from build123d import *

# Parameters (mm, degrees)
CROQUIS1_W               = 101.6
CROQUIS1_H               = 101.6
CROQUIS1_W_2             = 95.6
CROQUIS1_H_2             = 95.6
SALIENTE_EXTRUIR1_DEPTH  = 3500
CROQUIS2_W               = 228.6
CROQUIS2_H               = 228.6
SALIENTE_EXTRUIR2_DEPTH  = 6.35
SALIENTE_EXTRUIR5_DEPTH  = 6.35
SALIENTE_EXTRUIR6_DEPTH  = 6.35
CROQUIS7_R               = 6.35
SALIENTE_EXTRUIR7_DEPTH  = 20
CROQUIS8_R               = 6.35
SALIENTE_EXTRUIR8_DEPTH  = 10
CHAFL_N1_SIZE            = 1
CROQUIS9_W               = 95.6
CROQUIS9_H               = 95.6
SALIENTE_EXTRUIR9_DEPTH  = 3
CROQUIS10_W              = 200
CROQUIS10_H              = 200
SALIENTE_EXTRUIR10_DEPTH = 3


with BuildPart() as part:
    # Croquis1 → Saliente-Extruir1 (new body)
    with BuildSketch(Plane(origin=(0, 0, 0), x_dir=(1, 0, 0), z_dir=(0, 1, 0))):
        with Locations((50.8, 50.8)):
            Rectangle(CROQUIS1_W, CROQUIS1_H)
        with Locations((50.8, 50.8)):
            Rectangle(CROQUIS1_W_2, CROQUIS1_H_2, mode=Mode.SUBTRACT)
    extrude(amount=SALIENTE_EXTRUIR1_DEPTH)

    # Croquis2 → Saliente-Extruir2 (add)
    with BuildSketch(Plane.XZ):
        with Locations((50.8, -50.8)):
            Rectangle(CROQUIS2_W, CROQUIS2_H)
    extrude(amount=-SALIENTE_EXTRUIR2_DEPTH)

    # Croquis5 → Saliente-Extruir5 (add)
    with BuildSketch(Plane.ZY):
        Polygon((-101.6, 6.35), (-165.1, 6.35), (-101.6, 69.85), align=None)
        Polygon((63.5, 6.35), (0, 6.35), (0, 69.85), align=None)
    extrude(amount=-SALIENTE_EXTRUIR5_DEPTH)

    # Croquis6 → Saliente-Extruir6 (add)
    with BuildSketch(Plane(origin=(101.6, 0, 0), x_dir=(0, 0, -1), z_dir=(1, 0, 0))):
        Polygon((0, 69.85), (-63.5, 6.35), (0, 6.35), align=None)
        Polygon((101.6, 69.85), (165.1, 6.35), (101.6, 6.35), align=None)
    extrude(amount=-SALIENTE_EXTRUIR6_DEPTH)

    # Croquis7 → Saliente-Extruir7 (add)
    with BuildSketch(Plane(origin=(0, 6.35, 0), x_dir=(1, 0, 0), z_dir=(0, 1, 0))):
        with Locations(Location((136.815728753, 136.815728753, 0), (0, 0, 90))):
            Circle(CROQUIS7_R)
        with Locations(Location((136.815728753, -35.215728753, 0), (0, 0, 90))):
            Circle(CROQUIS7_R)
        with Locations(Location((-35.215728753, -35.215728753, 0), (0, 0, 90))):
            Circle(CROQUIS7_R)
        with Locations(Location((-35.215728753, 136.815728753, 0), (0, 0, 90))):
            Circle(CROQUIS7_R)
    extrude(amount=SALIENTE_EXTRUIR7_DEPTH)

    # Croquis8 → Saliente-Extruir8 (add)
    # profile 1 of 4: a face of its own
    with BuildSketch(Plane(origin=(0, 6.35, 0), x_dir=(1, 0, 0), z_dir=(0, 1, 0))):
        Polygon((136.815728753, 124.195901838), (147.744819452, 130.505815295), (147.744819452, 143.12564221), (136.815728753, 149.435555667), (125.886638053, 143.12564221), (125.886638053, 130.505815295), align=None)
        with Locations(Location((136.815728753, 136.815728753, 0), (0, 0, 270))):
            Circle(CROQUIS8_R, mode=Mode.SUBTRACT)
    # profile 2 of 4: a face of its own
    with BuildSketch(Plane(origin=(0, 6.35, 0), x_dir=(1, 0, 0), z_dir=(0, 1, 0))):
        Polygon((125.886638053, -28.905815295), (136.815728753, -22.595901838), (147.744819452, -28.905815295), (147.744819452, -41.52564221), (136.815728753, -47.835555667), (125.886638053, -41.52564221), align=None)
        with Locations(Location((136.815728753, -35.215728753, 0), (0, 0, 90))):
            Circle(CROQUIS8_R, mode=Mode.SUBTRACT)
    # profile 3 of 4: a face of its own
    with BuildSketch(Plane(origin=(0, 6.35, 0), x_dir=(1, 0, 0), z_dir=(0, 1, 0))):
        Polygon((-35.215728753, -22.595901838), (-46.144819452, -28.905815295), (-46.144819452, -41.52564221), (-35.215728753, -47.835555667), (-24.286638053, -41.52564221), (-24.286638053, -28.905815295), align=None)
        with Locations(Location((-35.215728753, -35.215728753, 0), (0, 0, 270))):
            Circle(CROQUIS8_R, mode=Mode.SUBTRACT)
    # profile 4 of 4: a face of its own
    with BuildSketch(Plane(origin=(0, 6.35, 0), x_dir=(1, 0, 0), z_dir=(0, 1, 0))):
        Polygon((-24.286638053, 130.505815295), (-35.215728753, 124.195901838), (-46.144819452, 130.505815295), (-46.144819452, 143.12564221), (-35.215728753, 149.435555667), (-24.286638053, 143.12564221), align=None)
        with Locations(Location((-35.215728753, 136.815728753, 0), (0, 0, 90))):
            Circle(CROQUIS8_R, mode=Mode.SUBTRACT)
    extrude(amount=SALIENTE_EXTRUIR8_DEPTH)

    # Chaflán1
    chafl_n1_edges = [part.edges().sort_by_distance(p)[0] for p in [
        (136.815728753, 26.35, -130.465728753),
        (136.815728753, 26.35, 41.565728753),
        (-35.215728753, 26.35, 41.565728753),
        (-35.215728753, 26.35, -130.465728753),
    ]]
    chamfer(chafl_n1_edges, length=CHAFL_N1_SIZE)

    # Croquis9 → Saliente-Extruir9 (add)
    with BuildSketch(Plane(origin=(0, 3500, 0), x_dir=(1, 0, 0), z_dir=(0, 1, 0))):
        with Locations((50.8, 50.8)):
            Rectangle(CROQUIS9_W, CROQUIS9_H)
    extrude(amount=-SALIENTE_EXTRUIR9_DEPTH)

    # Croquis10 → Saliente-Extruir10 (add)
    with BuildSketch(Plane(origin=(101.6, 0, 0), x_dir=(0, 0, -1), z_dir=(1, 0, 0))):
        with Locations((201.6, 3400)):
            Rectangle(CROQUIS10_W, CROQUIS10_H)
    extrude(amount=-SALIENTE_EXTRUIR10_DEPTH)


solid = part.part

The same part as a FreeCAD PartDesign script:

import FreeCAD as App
import Part
import Sketcher
from FreeCAD import Vector
Q = App.Units.Quantity


def edges_at(feature, points):
    """Names of the edges that pass closest to the given points."""
    edges = feature.Shape.Edges
    near = lambda p: min(range(len(edges)), key=lambda i: edges[i].distToShape(Part.Vertex(*p))[0])
    return sorted({f"Edge{near(p) + 1}" for p in points})


def add_polygon(sketch, points):
    """Adds a closed chain of lines whose ends are joined by coincident constraints."""
    first, n = sketch.GeometryCount, len(points)
    for a, b in zip(points, points[1:] + points[:1]):
        sketch.addGeometry(Part.LineSegment(App.Vector(*a, 0), App.Vector(*b, 0)), False)
    for i in range(n):
        sketch.addConstraint(Sketcher.Constraint("Coincident", first + i, 2, first + (i + 1) % n, 1))

doc = App.newDocument("Part")
body = doc.addObject("PartDesign::Body", "Body")

# Sketch on XZ plane
sketch1 = body.newObject("Sketcher::SketchObject", "Sketch")
sketch1.AttachmentSupport = (doc.getObject("XZ_Plane"), [""])
sketch1.MapMode = "FlatFace"
add_polygon(sketch1, [(0, -102), (0, 0), (102, 0), (102, -102)])  # lines 0-3
add_polygon(sketch1, [(99, -3), (3, -3), (3, -99), (99, -99)])  # lines 4-7
sketch1.addConstraint([
    Sketcher.Constraint("Vertical", 0),
    Sketcher.Constraint("Horizontal", 1),
    Sketcher.Constraint("Vertical", 2),
    Sketcher.Constraint("Horizontal", 3),
    Sketcher.Constraint("Horizontal", 4),
    Sketcher.Constraint("Vertical", 5),
    Sketcher.Constraint("Horizontal", 6),
    Sketcher.Constraint("Vertical", 7),
    Sketcher.Constraint("Coincident", 0, 2, -1, 1),
    Sketcher.Constraint("Equal", 3, 0),
    Sketcher.Constraint("Equal", 6, 5),
    Sketcher.Constraint("DistanceX", 1, 1, 1, 2, Q("101.6 mm")),
    Sketcher.Constraint("DistanceX", 4, 2, 4, 1, Q("95.6 mm")),
    Sketcher.Constraint("DistanceX", -1, 1, 4, 2, Q("3 mm")),
    Sketcher.Constraint("DistanceY", 4, 2, -1, 1, Q("3 mm")),
])
pad1 = body.newObject("PartDesign::Pad", "Pad")
pad1.Profile = sketch1
pad1.Length = 3500
pad1.Reversed = True

# Sketch on XZ plane
sketch2 = body.newObject("Sketcher::SketchObject", "Sketch001")
sketch2.AttachmentSupport = (doc.getObject("XZ_Plane"), [""])
sketch2.MapMode = "FlatFace"
add_polygon(sketch2, [(-64, 64), (-64, -165), (165, -165), (165, 64)])  # lines 0-3
sketch2.addConstraint([
    Sketcher.Constraint("Vertical", 0),
    Sketcher.Constraint("Horizontal", 1),
    Sketcher.Constraint("Vertical", 2),
    Sketcher.Constraint("Horizontal", 3),
    Sketcher.Constraint("Equal", 3, 0),
    Sketcher.Constraint("DistanceX", 1, 1, 1, 2, Q("228.6 mm")),
    Sketcher.Constraint("DistanceX", 0, 2, -1, 1, Q("63.5 mm")),
    Sketcher.Constraint("DistanceY", 0, 2, -1, 1, Q("165.1 mm")),
])
pad2 = body.newObject("PartDesign::Pad", "Pad001")
pad2.Profile = sketch2
pad2.Length = 6.35
pad2.Reversed = True

# Sketch on YZ plane
sketch3 = body.newObject("Sketcher::SketchObject", "Sketch002")
sketch3.AttachmentSupport = (doc.getObject("YZ_Plane"), [""])
sketch3.MapMode = "FlatFace"
add_polygon(sketch3, [(6, -165), (6, -102), (70, -102)])  # lines 0-2
add_polygon(sketch3, [(6, 0), (6, 64), (70, 0)])  # lines 3-5
sketch3.addConstraint([
    Sketcher.Constraint("Vertical", 0),
    Sketcher.Constraint("Horizontal", 1),
    Sketcher.Constraint("Vertical", 3),
    Sketcher.Constraint("Horizontal", 5),
    Sketcher.Constraint("PointOnObject", 4, 2, -1),
    Sketcher.Constraint("Perpendicular", 2, 4),
    Sketcher.Constraint("Vertical", 2, 2, 3, 2),
    Sketcher.Constraint("Vertical", 1, 2, 4, 2),
    Sketcher.Constraint("Equal", 5, 0),
    Sketcher.Constraint("DistanceX", 1, 1, 1, 2, Q("63.5 mm")),
    Sketcher.Constraint("DistanceY", 0, 2, -1, 1, Q("101.6 mm")),
    Sketcher.Constraint("DistanceX", -1, 1, 0, 2, Q("6.35 mm")),
])
pad3 = body.newObject("PartDesign::Pad", "Pad002")
pad3.Profile = sketch3
pad3.Length = 6.35

# Sketch on YZ plane
sketch4 = body.newObject("Sketcher::SketchObject", "Sketch003")
sketch4.AttachmentSupport = (doc.getObject("YZ_Plane"), [""])
sketch4.MapMode = "FlatFace"
sketch4.AttachmentOffset = App.Placement(Vector(0, 0, 101.6), App.Rotation())
add_polygon(sketch4, [(70, 0), (6, 64), (6, 0)])  # lines 0-2
add_polygon(sketch4, [(6, -165), (70, -102), (6, -102)])  # lines 3-5
sketch4.addConstraint([
    Sketcher.Constraint("Vertical", 1),
    Sketcher.Constraint("Horizontal", 2),
    Sketcher.Constraint("Horizontal", 4),
    Sketcher.Constraint("Vertical", 5),
    Sketcher.Constraint("PointOnObject", 1, 2, -1),
    Sketcher.Constraint("Perpendicular", 0, 3),
    Sketcher.Constraint("Vertical", 2, 2, 3, 2),
    Sketcher.Constraint("Vertical", 1, 2, 4, 2),
    Sketcher.Constraint("Equal", 4, 1),
    Sketcher.Constraint("DistanceX", 2, 1, 2, 2, Q("63.5 mm")),
    Sketcher.Constraint("DistanceY", 3, 2, -1, 1, Q("101.6 mm")),
    Sketcher.Constraint("DistanceX", -1, 1, 0, 2, Q("6.35 mm")),
])
pad4 = body.newObject("PartDesign::Pad", "Pad003")
pad4.Profile = sketch4
pad4.Length = 6.35
pad4.Reversed = True

# Sketch on XZ plane
sketch5 = body.newObject("Sketcher::SketchObject", "Sketch004")
sketch5.AttachmentSupport = (doc.getObject("XZ_Plane"), [""])
sketch5.MapMode = "FlatFace"
sketch5.AttachmentOffset = App.Placement(Vector(0, 0, -6.35), App.Rotation())
sketch5.addGeometry([
    Part.Circle(Vector(137, -137, 0), Vector(0, 0, 1), 6),
    Part.Circle(Vector(137, 35, 0), Vector(0, 0, 1), 6),
    Part.Circle(Vector(-35, 35, 0), Vector(0, 0, 1), 6),
    Part.Circle(Vector(-35, -137, 0), Vector(0, 0, 1), 6),
], False)
sketch5.addConstraint([
    Sketcher.Constraint("Equal", 0, 1),
    Sketcher.Constraint("Equal", 1, 2),
    Sketcher.Constraint("Equal", 2, 3),
    Sketcher.Constraint("Horizontal", 1, 3, 2, 3),
    Sketcher.Constraint("Horizontal", 0, 3, 3, 3),
    Sketcher.Constraint("Vertical", 0, 3, 1, 3),
    Sketcher.Constraint("Vertical", 2, 3, 3, 3),
    Sketcher.Constraint("Diameter", 0, Q("12.7 mm")),
    Sketcher.Constraint("DistanceX", -1, 1, 0, 3, Q("136.815729 mm")),
    Sketcher.Constraint("DistanceY", 0, 3, -1, 1, Q("136.815729 mm")),
    Sketcher.Constraint("DistanceY", -1, 1, 1, 3, Q("35.215729 mm")),
    Sketcher.Constraint("DistanceX", 2, 3, -1, 1, Q("35.215729 mm")),
])
pad5 = body.newObject("PartDesign::Pad", "Pad004")
pad5.Profile = sketch5
pad5.Length = 20
pad5.Reversed = True

# Sketch on XZ plane
sketch6 = body.newObject("Sketcher::SketchObject", "Sketch005")
sketch6.AttachmentSupport = (doc.getObject("XZ_Plane"), [""])
sketch6.MapMode = "FlatFace"
sketch6.AttachmentOffset = App.Placement(Vector(0, 0, -6.35), App.Rotation())
add_polygon(sketch6, [(137, -124), (148, -131), (148, -143), (137, -149), (126, -143), (126, -131)])  # lines 0-5
sketch6.addGeometry(Part.Circle(Vector(137, -137, 0), Vector(0, 0, 1), 6), False)  # 6
add_polygon(sketch6, [(137, 23), (126, 29), (126, 42), (137, 48), (148, 42), (148, 29)])  # lines 7-12
sketch6.addGeometry(Part.Circle(Vector(137, 35, 0), Vector(0, 0, 1), 6), False)  # 13
add_polygon(sketch6, [(-35, 23), (-46, 29), (-46, 42), (-35, 48), (-24, 42), (-24, 29)])  # lines 14-19
sketch6.addGeometry(Part.Circle(Vector(-35, 35, 0), Vector(0, 0, 1), 6), False)  # 20
add_polygon(sketch6, [(-35, -124), (-24, -131), (-24, -143), (-35, -149), (-46, -143), (-46, -131)])  # lines 21-26
sketch6.addGeometry(Part.Circle(Vector(-35, -137, 0), Vector(0, 0, 1), 6), False)  # 27
sketch6.addConstraint([
    Sketcher.Constraint("Vertical", 1),
    Sketcher.Constraint("Vertical", 4),
    Sketcher.Constraint("Vertical", 8),
    Sketcher.Constraint("Vertical", 11),
    Sketcher.Constraint("Vertical", 15),
    Sketcher.Constraint("Vertical", 18),
    Sketcher.Constraint("Vertical", 22),
    Sketcher.Constraint("Vertical", 25),
    Sketcher.Constraint("Equal", 6, 13),
    Sketcher.Constraint("Equal", 13, 20),
    Sketcher.Constraint("Equal", 20, 27),
    Sketcher.Constraint("Parallel", 0, 3),
    Sketcher.Constraint("Parallel", 2, 5),
    Sketcher.Constraint("Parallel", 3, 7),
    Sketcher.Constraint("Parallel", 5, 9),
    Sketcher.Constraint("Parallel", 7, 10),
    Sketcher.Constraint("Parallel", 9, 12),
    Sketcher.Constraint("Parallel", 10, 14),
    Sketcher.Constraint("Parallel", 12, 16),
    Sketcher.Constraint("Parallel", 14, 17),
    Sketcher.Constraint("Parallel", 16, 19),
    Sketcher.Constraint("Parallel", 17, 21),
    Sketcher.Constraint("Parallel", 19, 23),
    Sketcher.Constraint("Parallel", 21, 24),
    Sketcher.Constraint("Parallel", 23, 26),
    Sketcher.Constraint("Horizontal", 13, 3, 20, 3),
    Sketcher.Constraint("Horizontal", 6, 3, 27, 3),
    Sketcher.Constraint("Horizontal", 1, 2, 3, 2),
    Sketcher.Constraint("Horizontal", 0, 2, 4, 2),
    Sketcher.Constraint("Horizontal", 8, 2, 10, 2),
    Sketcher.Constraint("Horizontal", 7, 2, 11, 2),
    Sketcher.Constraint("Horizontal", 11, 2, 14, 2),
    Sketcher.Constraint("Horizontal", 10, 2, 15, 2),
    Sketcher.Constraint("Horizontal", 9, 2, 16, 2),
    Sketcher.Constraint("Horizontal", 15, 2, 17, 2),
    Sketcher.Constraint("Horizontal", 14, 2, 18, 2),
    Sketcher.Constraint("Horizontal", 4, 2, 21, 2),
    Sketcher.Constraint("Horizontal", 3, 2, 22, 2),
    Sketcher.Constraint("Horizontal", 2, 2, 23, 2),
    Sketcher.Constraint("Horizontal", 22, 2, 24, 2),
    Sketcher.Constraint("Horizontal", 21, 2, 25, 2),
    Sketcher.Constraint("Vertical", 6, 3, 13, 3),
    Sketcher.Constraint("Vertical", 20, 3, 27, 3),
    Sketcher.Constraint("Vertical", 13, 3, 2, 2),
    Sketcher.Constraint("Vertical", 2, 2, 5, 2),
    Sketcher.Constraint("Vertical", 4, 2, 7, 2),
    Sketcher.Constraint("Vertical", 5, 2, 9, 2),
    Sketcher.Constraint("Vertical", 27, 3, 16, 2),
    Sketcher.Constraint("Vertical", 18, 2, 21, 2),
    Sketcher.Constraint("Equal", 4, 8),
    Sketcher.Constraint("Diameter", 6, Q("12.7 mm")),
    Sketcher.Constraint("Angle", 0, Q("-30 deg")),
    Sketcher.Constraint("DistanceY", 5, 2, -1, 1, Q("124.195902 mm")),
    Sketcher.Constraint("DistanceY", -1, 1, 12, 2, Q("22.595902 mm")),
    Sketcher.Constraint("DistanceY", 1, 2, 1, 1, Q("12.619827 mm")),
    Sketcher.Constraint("DistanceX", -1, 1, 6, 3, Q("136.815729 mm")),
    Sketcher.Constraint("DistanceY", 6, 3, -1, 1, Q("136.815729 mm")),
    Sketcher.Constraint("DistanceY", -1, 1, 13, 3, Q("35.215729 mm")),
    Sketcher.Constraint("DistanceX", 20, 3, -1, 1, Q("35.215729 mm")),
    Sketcher.Constraint("DistanceX", -1, 1, 0, 2, Q("147.744819 mm")),
])
pad6 = body.newObject("PartDesign::Pad", "Pad005")
pad6.Profile = sketch6
pad6.Length = 10
pad6.Reversed = True
doc.recompute()

chamfer = body.newObject("PartDesign::Chamfer", "Chamfer")
chamfer.Base = (pad6, edges_at(pad6, [
    (136.816, 26.35, -130.466),
    (136.816, 26.35, 41.566),
    (-35.216, 26.35, 41.566),
    (-35.216, 26.35, -130.466),
]))
chamfer.Size = 1

# Sketch on XZ plane
sketch7 = body.newObject("Sketcher::SketchObject", "Sketch006")
sketch7.AttachmentSupport = (doc.getObject("XZ_Plane"), [""])
sketch7.MapMode = "FlatFace"
sketch7.AttachmentOffset = App.Placement(Vector(0, 0, -3500), App.Rotation())
add_polygon(sketch7, [(3, -99), (3, -3), (99, -3), (99, -99)])  # lines 0-3
sketch7.addConstraint([
    Sketcher.Constraint("Vertical", 0),
    Sketcher.Constraint("Horizontal", 1),
    Sketcher.Constraint("Vertical", 2),
    Sketcher.Constraint("Horizontal", 3),
    Sketcher.Constraint("Equal", 3, 0),
    Sketcher.Constraint("DistanceX", 1, 1, 1, 2, Q("95.6 mm")),
    Sketcher.Constraint("DistanceX", -1, 1, 0, 2, Q("3 mm")),
    Sketcher.Constraint("DistanceY", 0, 2, -1, 1, Q("3 mm")),
])
pad7 = body.newObject("PartDesign::Pad", "Pad006")
pad7.Profile = sketch7
pad7.Length = 3

# Sketch on YZ plane
sketch8 = body.newObject("Sketcher::SketchObject", "Sketch007")
sketch8.AttachmentSupport = (doc.getObject("YZ_Plane"), [""])
sketch8.MapMode = "FlatFace"
sketch8.AttachmentOffset = App.Placement(Vector(0, 0, 101.6), App.Rotation())
add_polygon(sketch8, [(3500, -102), (3300, -102), (3300, -302), (3500, -302)])  # lines 0-3
sketch8.addConstraint([
    Sketcher.Constraint("Horizontal", 0),
    Sketcher.Constraint("Vertical", 1),
    Sketcher.Constraint("Horizontal", 2),
    Sketcher.Constraint("Vertical", 3),
    Sketcher.Constraint("Equal", 2, 1),
    Sketcher.Constraint("DistanceX", 0, 2, 0, 1, Q("200 mm")),
    Sketcher.Constraint("DistanceX", -1, 1, 0, 2, Q("3300 mm")),
    Sketcher.Constraint("DistanceY", 0, 2, -1, 1, Q("101.6 mm")),
])
pad8 = body.newObject("PartDesign::Pad", "Pad007")
pad8.Profile = sketch8
pad8.Length = 3
pad8.Reversed = True

doc.recompute()
